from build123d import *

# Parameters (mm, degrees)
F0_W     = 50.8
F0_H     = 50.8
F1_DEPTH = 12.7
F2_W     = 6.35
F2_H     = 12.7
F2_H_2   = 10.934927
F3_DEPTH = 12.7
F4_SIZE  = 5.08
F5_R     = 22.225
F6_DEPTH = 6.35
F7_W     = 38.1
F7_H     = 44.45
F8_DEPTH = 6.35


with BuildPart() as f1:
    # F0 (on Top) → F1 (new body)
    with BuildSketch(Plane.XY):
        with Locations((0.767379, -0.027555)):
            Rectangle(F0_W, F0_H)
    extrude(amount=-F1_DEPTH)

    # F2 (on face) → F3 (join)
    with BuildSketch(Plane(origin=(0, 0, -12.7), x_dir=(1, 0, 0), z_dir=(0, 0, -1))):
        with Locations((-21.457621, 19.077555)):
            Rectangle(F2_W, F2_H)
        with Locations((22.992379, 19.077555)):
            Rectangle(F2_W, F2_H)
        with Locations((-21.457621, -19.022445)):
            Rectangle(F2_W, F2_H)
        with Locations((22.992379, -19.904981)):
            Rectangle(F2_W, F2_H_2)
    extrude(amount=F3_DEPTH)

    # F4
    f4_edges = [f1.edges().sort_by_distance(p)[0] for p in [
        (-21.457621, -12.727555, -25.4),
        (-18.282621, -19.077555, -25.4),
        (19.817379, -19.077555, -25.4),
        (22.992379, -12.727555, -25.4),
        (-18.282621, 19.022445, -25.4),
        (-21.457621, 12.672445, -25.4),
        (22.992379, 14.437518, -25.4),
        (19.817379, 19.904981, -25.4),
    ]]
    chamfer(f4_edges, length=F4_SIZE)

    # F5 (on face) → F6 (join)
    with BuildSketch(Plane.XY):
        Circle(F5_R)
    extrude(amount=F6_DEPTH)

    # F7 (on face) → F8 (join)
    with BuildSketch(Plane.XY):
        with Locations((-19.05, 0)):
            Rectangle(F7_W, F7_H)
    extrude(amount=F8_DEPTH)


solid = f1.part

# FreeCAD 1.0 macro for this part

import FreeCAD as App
import Part
import Sketcher
Q = App.Units.Quantity


def edges_at(feature, points):
    """Names of the edges that pass closest to the given points."""
    edges = feature.Shape.Edges
    near = lambda p: min(range(len(edges)), key=lambda i: edges[i].distToShape(Part.Vertex(*p))[0])
    return sorted({f"Edge{near(p) + 1}" for p in points})


def add_polygon(sketch, points):
    """Adds a closed chain of lines whose ends are joined by coincident constraints."""
    first, n = sketch.GeometryCount, len(points)
    for a, b in zip(points, points[1:] + points[:1]):
        sketch.addGeometry(Part.LineSegment(App.Vector(*a, 0), App.Vector(*b, 0)), False)
    for i in range(n):
        sketch.addConstraint(Sketcher.Constraint("Coincident", first + i, 2, first + (i + 1) % n, 1))

doc = App.newDocument("Part")
body = doc.addObject("PartDesign::Body", "Body")

# Sketch on XY plane
sketch1 = body.newObject("Sketcher::SketchObject", "Sketch")
sketch1.AttachmentSupport = (doc.getObject("XY_Plane"), [""])
sketch1.MapMode = "FlatFace"
add_polygon(sketch1, [(-25, 25), (-25, -25), (26, -25), (26, 25)])  # lines 0-3
sketch1.addConstraint([
    Sketcher.Constraint("Vertical", 0),
    Sketcher.Constraint("Horizontal", 1),
    Sketcher.Constraint("Vertical", 2),
    Sketcher.Constraint("Horizontal", 3),
    Sketcher.Constraint("Equal", 3, 0),
    Sketcher.Constraint("DistanceX", 1, 1, 1, 2, Q("2 in")),
    Sketcher.Constraint("DistanceX", 0, 2, -1, 1, 24.632621),
    Sketcher.Constraint("DistanceY", 0, 2, -1, 1, 25.427555),
])
pad1 = body.newObject("PartDesign::Pad", "Pad")
pad1.Profile = sketch1
pad1.Length = Q("0.5 in")
pad1.Reversed = True

# Sketch on XY plane
sketch2 = body.newObject("Sketcher::SketchObject", "Sketch001")
sketch2.AttachmentSupport = (doc.getObject("XY_Plane"), [""])
sketch2.MapMode = "FlatFace"
sketch2.AttachmentOffset = App.Placement(App.Vector(0, 0, -0.5 * 25.4), App.Rotation())
add_polygon(sketch2, [(-25, -25), (-25, -13), (-18, -13), (-18, -25)])  # lines 0-3
add_polygon(sketch2, [(20, -25), (20, -13), (26, -13), (26, -25)])  # lines 4-7
add_polygon(sketch2, [(-25, 13), (-25, 25), (-18, 25), (-18, 13)])  # lines 8-11
add_polygon(sketch2, [(20, 14), (20, 25), (26, 25), (26, 14)])  # lines 12-15
sketch2.addConstraint([
    Sketcher.Constraint("Vertical", 0),
    Sketcher.Constraint("Horizontal", 1),
    Sketcher.Constraint("Vertical", 2),
    Sketcher.Constraint("Horizontal", 3),
    Sketcher.Constraint("Vertical", 4),
    Sketcher.Constraint("Horizontal", 5),
    Sketcher.Constraint("Vertical", 6),
    Sketcher.Constraint("Horizontal", 7),
    Sketcher.Constraint("Vertical", 8),
    Sketcher.Constraint("Horizontal", 9),
    Sketcher.Constraint("Vertical", 10),
    Sketcher.Constraint("Horizontal", 11),
    Sketcher.Constraint("Vertical", 12),
    Sketcher.Constraint("Horizontal", 13),
    Sketcher.Constraint("Vertical", 14),
    Sketcher.Constraint("Horizontal", 15),
    Sketcher.Constraint("Horizontal", 1, 2, 4, 2),
    Sketcher.Constraint("Horizontal", 3, 2, 6, 2),
    Sketcher.Constraint("Horizontal", 9, 2, 12, 2),
    Sketcher.Constraint("Vertical", 3, 2, 8, 2),
    Sketcher.Constraint("Vertical", 2, 2, 9, 2),
    Sketcher.Constraint("Vertical", 7, 2, 12, 2),
    Sketcher.Constraint("Vertical", 6, 2, 13, 2),
    Sketcher.Constraint("Equal", 3, 5),
    Sketcher.Constraint("Equal", 6, 8),
    Sketcher.Constraint("DistanceY", 0, 1, 0, 2, Q("0.5 in")),
    Sketcher.Constraint("DistanceX", 0, 2, 5, 2, Q("2 in")),
    Sketcher.Constraint("DistanceY", 3, 2, 8, 2, Q("2 in")),
    Sketcher.Constraint("DistanceX", 1, 1, 1, 2, Q("0.25 in")),
    Sketcher.Constraint("DistanceY", 12, 1, 12, 2, 10.934927),
    Sketcher.Constraint("DistanceX", 0, 2, -1, 1, 24.632621),
    Sketcher.Constraint("DistanceY", 0, 2, -1, 1, 12.727555),
])
pad2 = body.newObject("PartDesign::Pad", "Pad001")
pad2.Profile = sketch2
pad2.Length = Q("0.5 in")
pad2.Reversed = True
doc.recompute()

chamfer = body.newObject("PartDesign::Chamfer", "Chamfer")
chamfer.Base = (pad2, edges_at(pad2, [
    (-21.458, -12.728, -25.4),
    (-18.283, -19.078, -25.4),
    (19.817, -19.078, -25.4),
    (22.992, -12.728, -25.4),
    (-18.283, 19.022, -25.4),
    (-21.458, 12.672, -25.4),
    (22.992, 14.438, -25.4),
    (19.817, 19.905, -25.4),
]))
chamfer.Size = Q("0.2 in")

# Sketch on XY plane
sketch3 = body.newObject("Sketcher::SketchObject", "Sketch002")
sketch3.AttachmentSupport = (doc.getObject("XY_Plane"), [""])
sketch3.MapMode = "FlatFace"
sketch3.addGeometry(Part.Circle(App.Vector(0, 0, 0), App.Vector(0, 0, 1), 22), False)
sketch3.addConstraint([
    Sketcher.Constraint("Coincident", 0, 3, -1, 1),
    Sketcher.Constraint("Diameter", 0, Q("1.75 in")),
])
pad3 = body.newObject("PartDesign::Pad", "Pad002")
pad3.Profile = sketch3
pad3.Length = Q("0.25 in")

# Sketch on XY plane
sketch4 = body.newObject("Sketcher::SketchObject", "Sketch003")
sketch4.AttachmentSupport = (doc.getObject("XY_Plane"), [""])
sketch4.MapMode = "FlatFace"
add_polygon(sketch4, [(-38, 22), (-38, -22), (0, -22), (0, 22)])  # lines 0-3
sketch4.addConstraint([
    Sketcher.Constraint("Vertical", 0),
    Sketcher.Constraint("Horizontal", 1),
    Sketcher.Constraint("Vertical", 2),
    Sketcher.Constraint("Horizontal", 3),
    Sketcher.Constraint("Symmetric", 1, 2, 2, 2, -1, 1),
    Sketcher.Constraint("DistanceX", 1, 1, 1, 2, Q("1.5 in")),
    Sketcher.Constraint("DistanceY", 0, 2, 0, 1, Q("1.75 in")),
])
pad4 = body.newObject("PartDesign::Pad", "Pad003")
pad4.Profile = sketch4
pad4.Length = Q("0.25 in")

doc.recompute()
